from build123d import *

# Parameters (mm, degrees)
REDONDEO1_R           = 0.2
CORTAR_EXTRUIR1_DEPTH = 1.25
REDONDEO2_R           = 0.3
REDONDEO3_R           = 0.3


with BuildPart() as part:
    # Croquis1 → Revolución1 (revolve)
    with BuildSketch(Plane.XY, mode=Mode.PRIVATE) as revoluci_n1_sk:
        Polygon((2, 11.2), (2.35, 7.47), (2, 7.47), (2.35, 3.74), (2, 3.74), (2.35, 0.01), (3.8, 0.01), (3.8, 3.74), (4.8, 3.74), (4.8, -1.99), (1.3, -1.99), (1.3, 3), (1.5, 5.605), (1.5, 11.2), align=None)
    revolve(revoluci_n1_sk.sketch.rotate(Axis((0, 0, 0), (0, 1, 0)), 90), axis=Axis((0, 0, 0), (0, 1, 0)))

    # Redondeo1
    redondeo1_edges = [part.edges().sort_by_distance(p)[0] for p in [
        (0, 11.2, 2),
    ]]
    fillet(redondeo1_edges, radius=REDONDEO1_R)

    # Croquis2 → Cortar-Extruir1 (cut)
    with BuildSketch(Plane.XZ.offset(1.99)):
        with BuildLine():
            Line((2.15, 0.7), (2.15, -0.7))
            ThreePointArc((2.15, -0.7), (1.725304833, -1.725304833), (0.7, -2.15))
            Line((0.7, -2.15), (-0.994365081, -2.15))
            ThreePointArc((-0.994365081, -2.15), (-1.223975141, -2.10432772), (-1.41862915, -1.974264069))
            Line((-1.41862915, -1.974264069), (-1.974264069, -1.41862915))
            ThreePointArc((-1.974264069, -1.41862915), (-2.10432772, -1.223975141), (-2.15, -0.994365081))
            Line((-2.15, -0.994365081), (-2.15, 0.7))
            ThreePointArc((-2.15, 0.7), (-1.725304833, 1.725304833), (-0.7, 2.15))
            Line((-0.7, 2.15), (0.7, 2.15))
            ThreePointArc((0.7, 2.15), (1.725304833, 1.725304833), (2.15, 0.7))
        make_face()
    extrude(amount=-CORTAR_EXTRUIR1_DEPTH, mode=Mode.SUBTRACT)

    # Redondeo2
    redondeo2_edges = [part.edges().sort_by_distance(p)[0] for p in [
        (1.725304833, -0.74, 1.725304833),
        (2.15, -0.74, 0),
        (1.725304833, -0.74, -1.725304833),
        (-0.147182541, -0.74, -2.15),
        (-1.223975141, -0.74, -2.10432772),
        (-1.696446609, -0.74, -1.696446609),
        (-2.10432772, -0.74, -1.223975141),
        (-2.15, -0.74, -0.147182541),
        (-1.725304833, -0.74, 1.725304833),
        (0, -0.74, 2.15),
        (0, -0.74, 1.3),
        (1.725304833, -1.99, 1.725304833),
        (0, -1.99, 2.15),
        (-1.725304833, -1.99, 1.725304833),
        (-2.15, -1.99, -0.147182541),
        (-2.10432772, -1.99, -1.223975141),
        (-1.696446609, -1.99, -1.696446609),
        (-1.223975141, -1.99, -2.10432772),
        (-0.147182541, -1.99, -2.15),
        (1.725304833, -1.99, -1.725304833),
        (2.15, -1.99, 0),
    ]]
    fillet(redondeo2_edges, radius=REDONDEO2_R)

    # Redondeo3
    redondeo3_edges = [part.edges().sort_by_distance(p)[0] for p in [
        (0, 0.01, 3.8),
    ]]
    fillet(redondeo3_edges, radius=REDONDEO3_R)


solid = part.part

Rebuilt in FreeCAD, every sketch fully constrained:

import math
import FreeCAD as App
import Part
import Sketcher
from FreeCAD import Vector


def edges_at(feature, points):
    """Names of the edges that pass closest to the given points."""
    edges = feature.Shape.Edges
    near = lambda p: min(range(len(edges)), key=lambda i: edges[i].distToShape(Part.Vertex(*p))[0])
    return sorted({f"Edge{near(p) + 1}" for p in points})


def add_polygon(sketch, points):
    """Adds a closed chain of lines whose ends are joined by coincident constraints."""
    first, n = sketch.GeometryCount, len(points)
    for a, b in zip(points, points[1:] + points[:1]):
        sketch.addGeometry(Part.LineSegment(App.Vector(*a, 0), App.Vector(*b, 0)), False)
    for i in range(n):
        sketch.addConstraint(Sketcher.Constraint("Coincident", first + i, 2, first + (i + 1) % n, 1))

doc = App.newDocument("Part")
params = doc.addObject("Spreadsheet::Sheet", "Params")
for row, (alias, value) in enumerate([
    ("sketch1_width", "1 mm"),
    ("sketch1_width2", "0.5 mm"),
    ("sketch1_width3", "3.5 mm"),
    ("sketch1_width4", "1.45 mm"),
    ("sketch1_width5", "0.35 mm"),
    ("revolution_angle", "360 deg"),
    ("fillet_radius", "0.2 mm"),
    ("sketch2_radius", "0.6 mm"),
    ("sketch2_radius2", "1.45 mm"),
    ("sketch2_width", "1.4 mm"),
    ("pocket1_length", "1.25 mm"),
    ("fillet2_radius", "0.3 mm"),
    ("fillet3_radius", "0.3 mm"),
], start=1):
    params.set(f"A{row}", alias)
    params.set(f"B{row}", "=" + value)
    params.setAlias(f"B{row}", alias)

body = doc.addObject("PartDesign::Body", "Body")

# Sketch on XY plane
sketch1 = doc.addObject("Sketcher::SketchObject", "Sketch")
body.addObject(sketch1)
sketch1.AttachmentSupport = (doc.XY_Plane, [""])
sketch1.MapMode = "FlatFace"
add_polygon(sketch1, [(2.35, 7.47), (2, 11.2), (1.5, 11.2), (1.5, 5.605), (1.3, 3), (1.3, -1.99), (4.8, -1.99), (4.8, 3.74), (3.8, 3.74), (3.8, 0.01), (2.35, 0.01), (2, 3.74), (2.35, 3.74), (2, 7.47)])  # lines 0-13
sketch1.addConstraint(Sketcher.Constraint("Horizontal", 1))
sketch1.addConstraint(Sketcher.Constraint("Vertical", 2))
sketch1.addConstraint(Sketcher.Constraint("Vertical", 4))
sketch1.addConstraint(Sketcher.Constraint("Horizontal", 5))
sketch1.addConstraint(Sketcher.Constraint("Vertical", 6))
sketch1.addConstraint(Sketcher.Constraint("Horizontal", 7))
sketch1.addConstraint(Sketcher.Constraint("Vertical", 8))
sketch1.addConstraint(Sketcher.Constraint("Horizontal", 9))
sketch1.addConstraint(Sketcher.Constraint("Horizontal", 11))
sketch1.addConstraint(Sketcher.Constraint("Horizontal", 13))
sketch1.addConstraint(Sketcher.Constraint("Parallel", 0, 10))
sketch1.addConstraint(Sketcher.Constraint("Parallel", 10, 12))
sketch1.addConstraint(Sketcher.Constraint("Horizontal", 7, 2, 10, 2))
sketch1.addConstraint(Sketcher.Constraint("Vertical", 0, 2, 10, 2))
sketch1.addConstraint(Sketcher.Constraint("Vertical", 9, 2, 11, 2))
sketch1.addConstraint(Sketcher.Constraint("Vertical", 10, 2, 12, 2))
sketch1.addConstraint(Sketcher.Constraint("Vertical", 11, 2, 13, 2))
sketch1.addConstraint(Sketcher.Constraint("DistanceX", 7, 2, 7, 1, 1.0))
sketch1.addConstraint(Sketcher.Constraint("DistanceX", 1, 2, 1, 1, 0.5))
sketch1.addConstraint(Sketcher.Constraint("DistanceX", 5, 1, 5, 2, 3.5))
sketch1.addConstraint(Sketcher.Constraint("DistanceX", -1, 1, 0, 2, 2.0))
sketch1.addConstraint(Sketcher.Constraint("DistanceY", -1, 1, 3, 2, 3.0))
sketch1.addConstraint(Sketcher.Constraint("DistanceY", 5, 2, 8, 2, 2.0))
sketch1.addConstraint(Sketcher.Constraint("DistanceX", 9, 2, 9, 1, 1.45))
sketch1.addConstraint(Sketcher.Constraint("DistanceX", 11, 1, 11, 2, 0.35))
sketch1.addConstraint(Sketcher.Constraint("DistanceY", 4, 2, 4, 1, 4.99))
sketch1.addConstraint(Sketcher.Constraint("DistanceY", 6, 1, 6, 2, 5.73))
sketch1.addConstraint(Sketcher.Constraint("DistanceY", 2, 2, 2, 1, 5.595))
sketch1.setExpression("Constraints[31]", "Params.sketch1_width")
sketch1.setExpression("Constraints[32]", "Params.sketch1_width2")
sketch1.setExpression("Constraints[33]", "Params.sketch1_width3")
sketch1.setExpression("Constraints[37]", "Params.sketch1_width4")
sketch1.setExpression("Constraints[38]", "Params.sketch1_width5")
revolution = doc.addObject("PartDesign::Revolution", "Revolution")
body.addObject(revolution)
revolution.Profile = sketch1
revolution.ReferenceAxis = (sketch1, ["V_Axis"])
revolution.setExpression("Angle", "Params.revolution_angle")
doc.recompute()

fillet = doc.addObject("PartDesign::Fillet", "Fillet")
body.addObject(fillet)
fillet.Base = (revolution, edges_at(revolution, [(0, 11.2, 2)]))
fillet.setExpression("Radius", "Params.fillet_radius")

# Sketch on XZ plane
sketch2 = doc.addObject("Sketcher::SketchObject", "Sketch001")
body.addObject(sketch2)
sketch2.AttachmentSupport = (doc.XZ_Plane, [""])
sketch2.MapMode = "FlatFace"
sketch2.AttachmentOffset = App.Placement(Vector(0, 0, 1.99), App.Rotation())
sketch2.addGeometry(Part.LineSegment(Vector(2.15, -0.7, 0), Vector(2.15, 0.7, 0)), False)
sketch2.addGeometry(Part.ArcOfCircle(Part.Circle(Vector(0.7, 0.7, 0), Vector(0, 0, 1), 1.45), math.radians(0), math.radians(90)), False)
sketch2.addGeometry(Part.LineSegment(Vector(0.7, 2.15, 0), Vector(-0.7, 2.15, 0)), False)
sketch2.addGeometry(Part.ArcOfCircle(Part.Circle(Vector(-0.7, 0.7, 0), Vector(0, 0, 1), 1.45), math.radians(90), math.radians(180)), False)
sketch2.addGeometry(Part.LineSegment(Vector(-2.15, 0.7, 0), Vector(-2.15, -0.994365, 0)), False)
sketch2.addGeometry(Part.ArcOfCircle(Part.Circle(Vector(-1.55, -0.994365, 0), Vector(0, 0, 1), 0.6), math.radians(180), math.radians(225)), False)
sketch2.addGeometry(Part.LineSegment(Vector(-1.974264, -1.418629, 0), Vector(-1.418629, -1.974264, 0)), False)
sketch2.addGeometry(Part.ArcOfCircle(Part.Circle(Vector(-0.994365, -1.55, 0), Vector(0, 0, 1), 0.6), math.radians(-135), math.radians(-90)), False)
sketch2.addGeometry(Part.LineSegment(Vector(-0.994365, -2.15, 0), Vector(0.7, -2.15, 0)), False)
sketch2.addGeometry(Part.ArcOfCircle(Part.Circle(Vector(0.7, -0.7, 0), Vector(0, 0, 1), 1.45), math.radians(-90), math.radians(0)), False)
sketch2.addConstraint(Sketcher.Constraint("Tangent", 0, 2, 1, 1))
sketch2.addConstraint(Sketcher.Constraint("Tangent", 1, 2, 2, 1))
sketch2.addConstraint(Sketcher.Constraint("Tangent", 2, 2, 3, 1))
sketch2.addConstraint(Sketcher.Constraint("Tangent", 3, 2, 4, 1))
sketch2.addConstraint(Sketcher.Constraint("Tangent", 4, 2, 5, 1))
sketch2.addConstraint(Sketcher.Constraint("Tangent", 5, 2, 6, 1))
sketch2.addConstraint(Sketcher.Constraint("Tangent", 6, 2, 7, 1))
sketch2.addConstraint(Sketcher.Constraint("Tangent", 7, 2, 8, 1))
sketch2.addConstraint(Sketcher.Constraint("Tangent", 8, 2, 9, 1))
sketch2.addConstraint(Sketcher.Constraint("Tangent", 9, 2, 0, 1))
sketch2.addConstraint(Sketcher.Constraint("Vertical", 0))
sketch2.addConstraint(Sketcher.Constraint("Horizontal", 2))
sketch2.addConstraint(Sketcher.Constraint("Vertical", 4))
sketch2.addConstraint(Sketcher.Constraint("Horizontal", 8))
sketch2.addConstraint(Sketcher.Constraint("Equal", 1, 3))
sketch2.addConstraint(Sketcher.Constraint("Equal", 5, 7))
sketch2.addConstraint(Sketcher.Constraint("Equal", 3, 9))
sketch2.addConstraint(Sketcher.Constraint("Symmetric", 3, 3, 9, 3, -1, 1))
sketch2.addConstraint(Sketcher.Constraint("Equal", 2, 0))
sketch2.addConstraint(Sketcher.Constraint("Equal", 8, 4))
sketch2.addConstraint(Sketcher.Constraint("Radius", 5, 0.6))
sketch2.addConstraint(Sketcher.Constraint("Radius", 1, 1.45))
sketch2.addConstraint(Sketcher.Constraint("DistanceX", 2, 2, 2, 1, 1.4))
sketch2.addConstraint(Sketcher.Constraint("DistanceX", 5, 2, 7, 3, 0.979899))
sketch2.setExpression("Constraints[20]", "Params.sketch2_radius")
sketch2.setExpression("Constraints[21]", "Params.sketch2_radius2")
sketch2.setExpression("Constraints[22]", "Params.sketch2_width")
pocket1 = doc.addObject("PartDesign::Pocket", "Pocket")
body.addObject(pocket1)
pocket1.Profile = sketch2
pocket1.setExpression("Length", "Params.pocket1_length")
doc.recompute()

fillet2 = doc.addObject("PartDesign::Fillet", "Fillet001")
body.addObject(fillet2)
fillet2.Base = (pocket1, edges_at(pocket1, [
    (1.725, -0.74, 1.725),
    (2.15, -0.74, 0),
    (1.725, -0.74, -1.725),
    (-0.147, -0.74, -2.15),
    (-1.224, -0.74, -2.104),
    (-1.696, -0.74, -1.696),
    (-2.104, -0.74, -1.224),
    (-2.15, -0.74, -0.147),
    (-1.725, -0.74, 1.725),
    (0, -0.74, 2.15),
    (0, -0.74, 1.3),
    (1.725, -1.99, 1.725),
    (0, -1.99, 2.15),
    (-1.725, -1.99, 1.725),
    (-2.15, -1.99, -0.147),
    (-2.104, -1.99, -1.224),
    (-1.696, -1.99, -1.696),
    (-1.224, -1.99, -2.104),
    (-0.147, -1.99, -2.15),
    (1.725, -1.99, -1.725),
    (2.15, -1.99, 0),
]))
fillet2.setExpression("Radius", "Params.fillet2_radius")
doc.recompute()

fillet3 = doc.addObject("PartDesign::Fillet", "Fillet002")
body.addObject(fillet3)
fillet3.Base = (fillet2, edges_at(fillet2, [(0, 0.01, 3.8)]))
fillet3.setExpression("Radius", "Params.fillet3_radius")

doc.recompute()
